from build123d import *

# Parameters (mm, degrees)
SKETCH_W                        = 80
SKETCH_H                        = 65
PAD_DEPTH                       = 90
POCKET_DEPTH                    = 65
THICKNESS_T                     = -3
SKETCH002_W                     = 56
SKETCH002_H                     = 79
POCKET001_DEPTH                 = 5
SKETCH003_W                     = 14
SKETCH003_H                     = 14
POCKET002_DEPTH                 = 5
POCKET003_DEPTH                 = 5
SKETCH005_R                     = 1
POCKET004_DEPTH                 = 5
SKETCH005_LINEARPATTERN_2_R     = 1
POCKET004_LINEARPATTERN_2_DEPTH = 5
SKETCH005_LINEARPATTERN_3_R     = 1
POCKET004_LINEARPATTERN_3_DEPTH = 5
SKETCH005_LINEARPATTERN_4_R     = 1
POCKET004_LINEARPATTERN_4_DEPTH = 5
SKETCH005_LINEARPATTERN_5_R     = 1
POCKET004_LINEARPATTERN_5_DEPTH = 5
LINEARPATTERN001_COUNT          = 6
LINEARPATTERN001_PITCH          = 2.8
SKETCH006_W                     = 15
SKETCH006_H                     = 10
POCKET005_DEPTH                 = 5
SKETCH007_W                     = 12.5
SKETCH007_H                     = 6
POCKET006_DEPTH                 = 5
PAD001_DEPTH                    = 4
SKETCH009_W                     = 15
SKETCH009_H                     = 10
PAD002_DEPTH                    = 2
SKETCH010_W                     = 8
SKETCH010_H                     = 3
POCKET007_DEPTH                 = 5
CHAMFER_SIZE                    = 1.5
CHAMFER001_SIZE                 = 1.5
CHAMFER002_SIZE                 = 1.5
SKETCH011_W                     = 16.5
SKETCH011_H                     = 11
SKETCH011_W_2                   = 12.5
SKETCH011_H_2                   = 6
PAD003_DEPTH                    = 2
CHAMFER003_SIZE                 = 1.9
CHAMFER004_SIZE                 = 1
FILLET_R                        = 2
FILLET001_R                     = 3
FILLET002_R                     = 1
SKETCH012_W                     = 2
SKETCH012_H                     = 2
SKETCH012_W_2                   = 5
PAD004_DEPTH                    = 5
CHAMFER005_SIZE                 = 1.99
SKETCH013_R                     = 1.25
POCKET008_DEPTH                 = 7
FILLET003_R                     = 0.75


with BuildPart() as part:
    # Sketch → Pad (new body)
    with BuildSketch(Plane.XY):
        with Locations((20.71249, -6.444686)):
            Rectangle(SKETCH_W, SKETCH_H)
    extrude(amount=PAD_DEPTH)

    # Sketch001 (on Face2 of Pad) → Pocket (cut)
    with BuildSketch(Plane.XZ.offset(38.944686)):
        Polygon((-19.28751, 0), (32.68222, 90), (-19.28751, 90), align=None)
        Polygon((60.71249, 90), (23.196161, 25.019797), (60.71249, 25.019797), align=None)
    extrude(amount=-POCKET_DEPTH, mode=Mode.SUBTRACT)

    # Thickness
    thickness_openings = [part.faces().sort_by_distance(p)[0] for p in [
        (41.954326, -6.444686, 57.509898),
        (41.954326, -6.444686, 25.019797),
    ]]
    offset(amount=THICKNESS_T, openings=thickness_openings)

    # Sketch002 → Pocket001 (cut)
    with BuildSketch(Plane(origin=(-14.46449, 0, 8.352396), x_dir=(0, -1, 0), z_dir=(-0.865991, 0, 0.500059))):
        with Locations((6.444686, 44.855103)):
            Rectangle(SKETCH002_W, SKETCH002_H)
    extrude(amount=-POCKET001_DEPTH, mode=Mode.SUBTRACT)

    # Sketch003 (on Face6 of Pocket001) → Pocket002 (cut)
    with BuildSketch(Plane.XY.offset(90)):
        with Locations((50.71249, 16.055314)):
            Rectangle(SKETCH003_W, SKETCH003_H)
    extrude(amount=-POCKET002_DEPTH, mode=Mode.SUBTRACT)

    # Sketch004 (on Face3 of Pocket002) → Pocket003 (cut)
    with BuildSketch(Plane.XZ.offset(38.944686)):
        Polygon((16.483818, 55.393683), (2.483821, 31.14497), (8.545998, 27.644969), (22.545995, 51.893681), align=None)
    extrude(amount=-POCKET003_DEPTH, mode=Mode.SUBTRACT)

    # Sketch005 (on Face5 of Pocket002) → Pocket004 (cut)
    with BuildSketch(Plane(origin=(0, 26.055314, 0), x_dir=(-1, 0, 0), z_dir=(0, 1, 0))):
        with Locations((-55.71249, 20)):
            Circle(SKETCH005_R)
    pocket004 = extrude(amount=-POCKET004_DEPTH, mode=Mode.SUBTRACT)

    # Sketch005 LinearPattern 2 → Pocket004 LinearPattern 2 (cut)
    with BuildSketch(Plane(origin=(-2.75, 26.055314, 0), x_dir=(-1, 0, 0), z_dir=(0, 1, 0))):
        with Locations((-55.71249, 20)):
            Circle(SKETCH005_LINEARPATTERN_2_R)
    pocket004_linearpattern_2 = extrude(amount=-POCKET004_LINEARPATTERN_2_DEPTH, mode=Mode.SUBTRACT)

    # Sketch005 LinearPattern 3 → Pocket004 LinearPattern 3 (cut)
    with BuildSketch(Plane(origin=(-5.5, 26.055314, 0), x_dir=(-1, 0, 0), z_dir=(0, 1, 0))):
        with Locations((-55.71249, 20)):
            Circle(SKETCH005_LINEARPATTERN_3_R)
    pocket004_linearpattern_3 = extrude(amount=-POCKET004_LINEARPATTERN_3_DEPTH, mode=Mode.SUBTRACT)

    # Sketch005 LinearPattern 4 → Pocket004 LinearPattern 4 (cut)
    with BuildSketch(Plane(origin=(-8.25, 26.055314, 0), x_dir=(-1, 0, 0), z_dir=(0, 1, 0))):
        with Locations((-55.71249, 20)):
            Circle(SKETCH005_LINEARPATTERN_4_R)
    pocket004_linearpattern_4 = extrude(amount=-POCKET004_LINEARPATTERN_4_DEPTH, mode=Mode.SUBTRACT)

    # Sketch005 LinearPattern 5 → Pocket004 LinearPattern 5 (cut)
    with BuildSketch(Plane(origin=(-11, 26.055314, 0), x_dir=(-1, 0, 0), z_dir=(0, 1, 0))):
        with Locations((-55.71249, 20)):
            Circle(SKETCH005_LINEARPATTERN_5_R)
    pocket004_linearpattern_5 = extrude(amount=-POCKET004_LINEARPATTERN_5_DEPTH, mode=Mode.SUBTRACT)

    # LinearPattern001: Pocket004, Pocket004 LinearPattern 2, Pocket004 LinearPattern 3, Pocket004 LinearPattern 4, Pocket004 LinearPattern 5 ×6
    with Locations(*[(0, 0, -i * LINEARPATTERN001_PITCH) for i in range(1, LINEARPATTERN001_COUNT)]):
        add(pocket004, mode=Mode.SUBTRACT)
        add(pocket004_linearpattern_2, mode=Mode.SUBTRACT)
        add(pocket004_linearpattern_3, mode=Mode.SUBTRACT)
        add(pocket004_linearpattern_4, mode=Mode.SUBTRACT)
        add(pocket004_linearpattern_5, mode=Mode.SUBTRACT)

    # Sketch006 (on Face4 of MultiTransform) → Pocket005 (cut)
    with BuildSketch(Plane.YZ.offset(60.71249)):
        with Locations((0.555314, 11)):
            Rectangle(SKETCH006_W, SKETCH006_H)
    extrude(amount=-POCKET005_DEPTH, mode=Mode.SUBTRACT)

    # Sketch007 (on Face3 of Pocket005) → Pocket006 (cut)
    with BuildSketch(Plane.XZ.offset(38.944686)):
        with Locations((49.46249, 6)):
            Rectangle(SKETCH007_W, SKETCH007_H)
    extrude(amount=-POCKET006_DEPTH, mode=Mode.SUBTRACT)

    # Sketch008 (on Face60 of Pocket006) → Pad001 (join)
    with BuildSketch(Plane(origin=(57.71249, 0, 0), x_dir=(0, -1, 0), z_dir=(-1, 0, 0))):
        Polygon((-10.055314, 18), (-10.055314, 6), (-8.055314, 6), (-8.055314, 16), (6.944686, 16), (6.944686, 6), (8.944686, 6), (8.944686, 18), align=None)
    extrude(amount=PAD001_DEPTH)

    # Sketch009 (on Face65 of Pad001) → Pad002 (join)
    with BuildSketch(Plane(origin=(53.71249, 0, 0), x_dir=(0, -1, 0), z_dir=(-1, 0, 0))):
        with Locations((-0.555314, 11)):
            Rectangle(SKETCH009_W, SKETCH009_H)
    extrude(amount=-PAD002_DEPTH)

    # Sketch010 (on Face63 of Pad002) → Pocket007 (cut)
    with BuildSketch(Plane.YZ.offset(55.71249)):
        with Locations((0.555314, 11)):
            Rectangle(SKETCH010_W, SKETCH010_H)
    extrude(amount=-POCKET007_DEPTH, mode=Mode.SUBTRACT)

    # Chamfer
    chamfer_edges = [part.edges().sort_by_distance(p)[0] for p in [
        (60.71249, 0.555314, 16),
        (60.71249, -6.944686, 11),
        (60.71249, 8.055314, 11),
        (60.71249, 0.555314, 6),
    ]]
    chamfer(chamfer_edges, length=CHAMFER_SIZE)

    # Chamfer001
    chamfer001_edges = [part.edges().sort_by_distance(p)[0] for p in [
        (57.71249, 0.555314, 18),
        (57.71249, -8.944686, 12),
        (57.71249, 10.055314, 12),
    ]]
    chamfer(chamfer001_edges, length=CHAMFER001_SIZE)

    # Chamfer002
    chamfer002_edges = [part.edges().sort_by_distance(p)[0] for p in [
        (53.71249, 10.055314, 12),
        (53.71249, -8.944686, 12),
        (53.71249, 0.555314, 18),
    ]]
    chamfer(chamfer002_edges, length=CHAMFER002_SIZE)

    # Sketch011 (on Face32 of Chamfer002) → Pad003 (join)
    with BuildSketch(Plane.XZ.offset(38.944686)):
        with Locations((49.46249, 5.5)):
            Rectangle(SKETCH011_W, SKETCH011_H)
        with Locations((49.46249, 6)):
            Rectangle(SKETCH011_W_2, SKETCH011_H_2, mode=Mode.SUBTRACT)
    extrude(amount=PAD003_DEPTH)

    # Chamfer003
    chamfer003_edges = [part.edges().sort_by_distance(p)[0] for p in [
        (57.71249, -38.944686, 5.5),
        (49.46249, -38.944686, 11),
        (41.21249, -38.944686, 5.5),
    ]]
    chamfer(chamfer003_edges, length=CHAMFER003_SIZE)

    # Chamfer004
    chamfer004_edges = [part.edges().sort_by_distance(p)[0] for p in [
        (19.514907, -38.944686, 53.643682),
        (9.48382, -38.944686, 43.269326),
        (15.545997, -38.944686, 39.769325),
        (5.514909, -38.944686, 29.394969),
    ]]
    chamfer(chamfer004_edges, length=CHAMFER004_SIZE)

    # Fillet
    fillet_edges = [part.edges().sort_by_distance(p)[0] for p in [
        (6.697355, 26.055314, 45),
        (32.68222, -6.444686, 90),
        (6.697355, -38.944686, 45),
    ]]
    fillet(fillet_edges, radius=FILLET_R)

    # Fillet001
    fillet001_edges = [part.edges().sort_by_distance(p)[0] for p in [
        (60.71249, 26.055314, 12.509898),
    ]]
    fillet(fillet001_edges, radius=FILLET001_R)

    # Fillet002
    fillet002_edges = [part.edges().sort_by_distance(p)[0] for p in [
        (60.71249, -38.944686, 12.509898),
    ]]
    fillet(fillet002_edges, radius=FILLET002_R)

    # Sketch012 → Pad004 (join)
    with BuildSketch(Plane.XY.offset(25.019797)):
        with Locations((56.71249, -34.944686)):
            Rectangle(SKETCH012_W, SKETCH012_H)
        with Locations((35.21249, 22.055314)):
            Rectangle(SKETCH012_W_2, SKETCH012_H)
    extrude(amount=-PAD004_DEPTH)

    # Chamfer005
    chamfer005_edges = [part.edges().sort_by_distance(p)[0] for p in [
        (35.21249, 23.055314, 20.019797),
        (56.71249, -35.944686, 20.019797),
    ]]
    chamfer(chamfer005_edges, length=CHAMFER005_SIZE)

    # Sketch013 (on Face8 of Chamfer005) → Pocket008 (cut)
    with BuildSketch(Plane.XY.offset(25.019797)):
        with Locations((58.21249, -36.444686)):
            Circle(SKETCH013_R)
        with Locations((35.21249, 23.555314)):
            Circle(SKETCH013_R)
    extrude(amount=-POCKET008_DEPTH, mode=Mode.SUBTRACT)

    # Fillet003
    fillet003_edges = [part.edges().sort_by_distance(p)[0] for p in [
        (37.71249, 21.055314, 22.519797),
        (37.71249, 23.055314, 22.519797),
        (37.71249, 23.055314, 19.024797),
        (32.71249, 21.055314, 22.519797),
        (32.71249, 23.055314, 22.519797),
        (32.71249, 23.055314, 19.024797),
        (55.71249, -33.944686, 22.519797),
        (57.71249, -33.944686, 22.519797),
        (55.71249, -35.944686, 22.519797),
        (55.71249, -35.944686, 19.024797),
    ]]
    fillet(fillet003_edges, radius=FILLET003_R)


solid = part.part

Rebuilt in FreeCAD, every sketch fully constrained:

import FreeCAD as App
import Part
import Sketcher
from FreeCAD import Vector
Q = App.Units.Quantity


def edges_at(feature, points):
    """Names of the edges that pass closest to the given points."""
    edges = feature.Shape.Edges
    near = lambda p: min(range(len(edges)), key=lambda i: edges[i].distToShape(Part.Vertex(*p))[0])
    return sorted({f"Edge{near(p) + 1}" for p in points})


def faces_at(feature, points):
    """Names of the faces that lie closest to the given points."""
    faces = feature.Shape.Faces
    near = lambda p: min(range(len(faces)), key=lambda i: faces[i].distToShape(Part.Vertex(*p))[0])
    return sorted({f"Face{near(p) + 1}" for p in points})


def add_polygon(sketch, points):
    """Adds a closed chain of lines whose ends are joined by coincident constraints."""
    first, n = sketch.GeometryCount, len(points)
    for a, b in zip(points, points[1:] + points[:1]):
        sketch.addGeometry(Part.LineSegment(App.Vector(*a, 0), App.Vector(*b, 0)), False)
    for i in range(n):
        sketch.addConstraint(Sketcher.Constraint("Coincident", first + i, 2, first + (i + 1) % n, 1))

doc = App.newDocument("Part")
body = doc.addObject("PartDesign::Body", "Body")

# Sketch on XY plane
sketch1 = doc.addObject("Sketcher::SketchObject", "Sketch")
body.addObject(sketch1)
sketch1.AttachmentSupport = (doc.XY_Plane, [""])
sketch1.MapMode = "FlatFace"
add_polygon(sketch1, [(-19, 26), (-19, -39), (61, -39), (61, 26)])  # lines 0-3
sketch1.addConstraint([
    Sketcher.Constraint("Vertical", 0),
    Sketcher.Constraint("Horizontal", 1),
    Sketcher.Constraint("Vertical", 2),
    Sketcher.Constraint("Horizontal", 3),
    Sketcher.Constraint("DistanceX", 1, 1, 1, 2, Q("80 mm")),
    Sketcher.Constraint("DistanceY", 0, 2, 0, 1, Q("65 mm")),
    Sketcher.Constraint("DistanceX", 0, 2, -1, 1, Q("19.28751 mm")),
    Sketcher.Constraint("DistanceY", 0, 2, -1, 1, Q("38.944686 mm")),
])
pad1 = doc.addObject("PartDesign::Pad", "Pad")
body.addObject(pad1)
pad1.Profile = sketch1
pad1.Length = 90

# Sketch on XZ plane
sketch2 = doc.addObject("Sketcher::SketchObject", "Sketch001")
body.addObject(sketch2)
sketch2.AttachmentSupport = (doc.XZ_Plane, [""])
sketch2.MapMode = "FlatFace"
sketch2.AttachmentOffset = App.Placement(Vector(0, 0, 38.944686), App.Rotation())
add_polygon(sketch2, [(-19, 0), (33, 90), (-19, 90)])  # lines 0-2
add_polygon(sketch2, [(61, 90), (23, 25), (61, 25)])  # lines 3-5
sketch2.addConstraint([
    Sketcher.Constraint("Horizontal", 1),
    Sketcher.Constraint("Vertical", 2),
    Sketcher.Constraint("Horizontal", 4),
    Sketcher.Constraint("Vertical", 5),
    Sketcher.Constraint("PointOnObject", 2, 2, -1),
    Sketcher.Constraint("Horizontal", 1, 2, 5, 2),
    Sketcher.Constraint("DistanceY", 2, 2, 2, 1, Q("90 mm")),
    Sketcher.Constraint("Angle", 3, Q("-119.999994 deg")),
    Sketcher.Constraint("DistanceX", 2, 2, 4, 2, Q("80 mm")),
    Sketcher.Constraint("DistanceX", 1, 2, 1, 1, Q("51.96973 mm")),
    Sketcher.Constraint("DistanceX", 4, 1, 4, 2, Q("37.516329 mm")),
    Sketcher.Constraint("DistanceX", -1, 1, 0, 2, Q("32.68222 mm")),
])
pocket1 = doc.addObject("PartDesign::Pocket", "Pocket")
body.addObject(pocket1)
pocket1.Profile = sketch2
pocket1.Length = 65
doc.recompute()

thickness = doc.addObject("PartDesign::Thickness", "Thickness")
body.addObject(thickness)
thickness.Base = (pocket1, faces_at(pocket1, [(41.954, -6.445, 57.51), (41.954, -6.445, 25.02)]))
thickness.Value = 3
thickness.Reversed = True
thickness.Join = "Arc"

# Sketch on an angled plane
sketch3 = doc.addObject("Sketcher::SketchObject", "Sketch002")
body.addObject(sketch3)
sketch3.Placement = App.Placement(Vector(-14.46449, 0, 8.352396), App.Rotation(Vector(0, -1, 0), Vector(0.500059146, 0, 0.865991253), Vector(-0.865991253, 0, 0.500059146), "ZXY"))
add_polygon(sketch3, [(-22, 84), (-22, 5), (34, 5), (34, 84)])  # lines 0-3
sketch3.addConstraint([
    Sketcher.Constraint("Vertical", 0),
    Sketcher.Constraint("Horizontal", 1),
    Sketcher.Constraint("Vertical", 2),
    Sketcher.Constraint("Horizontal", 3),
    Sketcher.Constraint("DistanceX", 1, 1, 1, 2, Q("56 mm")),
    Sketcher.Constraint("DistanceY", 0, 2, 0, 1, Q("79 mm")),
    Sketcher.Constraint("DistanceX", 0, 2, -1, 1, Q("21.555314 mm")),
    Sketcher.Constraint("DistanceY", -1, 1, 0, 2, Q("5.355103 mm")),
])
pocket2 = doc.addObject("PartDesign::Pocket", "Pocket001")
body.addObject(pocket2)
pocket2.Profile = sketch3
pocket2.Length = 5

# Sketch on XY plane
sketch4 = doc.addObject("Sketcher::SketchObject", "Sketch003")
body.addObject(sketch4)
sketch4.AttachmentSupport = (doc.XY_Plane, [""])
sketch4.MapMode = "FlatFace"
sketch4.AttachmentOffset = App.Placement(Vector(0, 0, 90), App.Rotation())
add_polygon(sketch4, [(44, 23), (44, 9), (58, 9), (58, 23)])  # lines 0-3
sketch4.addConstraint([
    Sketcher.Constraint("Vertical", 0),
    Sketcher.Constraint("Horizontal", 1),
    Sketcher.Constraint("Vertical", 2),
    Sketcher.Constraint("Horizontal", 3),
    Sketcher.Constraint("Equal", 3, 0),
    Sketcher.Constraint("DistanceX", 1, 1, 1, 2, Q("14 mm")),
    Sketcher.Constraint("DistanceX", -1, 1, 0, 2, Q("43.71249 mm")),
    Sketcher.Constraint("DistanceY", -1, 1, 0, 2, Q("9.055314 mm")),
])
pocket3 = doc.addObject("PartDesign::Pocket", "Pocket002")
body.addObject(pocket3)
pocket3.Profile = sketch4
pocket3.Length = 5

# Sketch on XZ plane
sketch5 = doc.addObject("Sketcher::SketchObject", "Sketch004")
body.addObject(sketch5)
sketch5.AttachmentSupport = (doc.XZ_Plane, [""])
sketch5.MapMode = "FlatFace"
sketch5.AttachmentOffset = App.Placement(Vector(0, 0, 38.944686), App.Rotation())
add_polygon(sketch5, [(16, 55), (2, 31), (9, 28), (23, 52)])  # lines 0-3
sketch5.addConstraint([
    Sketcher.Constraint("Perpendicular", 0, 1),
    Sketcher.Constraint("Perpendicular", 1, 2),
    Sketcher.Constraint("Perpendicular", 2, 3),
    Sketcher.Constraint("Angle", 0, Q("-119.999993 deg")),
    Sketcher.Constraint("Distance", 0, Q("28 mm")),
    Sketcher.Constraint("Distance", 1, Q("7 mm")),
    Sketcher.Constraint("DistanceX", -1, 1, 1, 2, Q("8.545998 mm")),
    Sketcher.Constraint("DistanceY", -1, 1, 0, 2, Q("31.14497 mm")),
])
pocket4 = doc.addObject("PartDesign::Pocket", "Pocket003")
body.addObject(pocket4)
pocket4.Profile = sketch5
pocket4.Length = 5

# Sketch on XZ plane
sketch6 = doc.addObject("Sketcher::SketchObject", "Sketch005")
body.addObject(sketch6)
sketch6.AttachmentSupport = (doc.XZ_Plane, [""])
sketch6.MapMode = "FlatFace"
sketch6.AttachmentOffset = App.Placement(Vector(0, 0, -26.055314), App.Rotation())
sketch6.addGeometry(Part.Circle(Vector(55.7, 20, 0), Vector(0, 0, 1), 1), False)
sketch6.addConstraint([
    Sketcher.Constraint("Diameter", 0, Q("2 mm")),
    Sketcher.Constraint("DistanceY", -1, 1, 0, 3, Q("20 mm")),
    Sketcher.Constraint("DistanceX", -1, 1, 0, 3, Q("55.71249 mm")),
])
pocket5 = doc.addObject("PartDesign::Pocket", "Pocket004")
body.addObject(pocket5)
pocket5.Profile = sketch6
pocket5.Length = 5
pocket5.Reversed = True

# Sketch on XZ plane
sketch7 = doc.addObject("Sketcher::SketchObject", "Sketch006")
body.addObject(sketch7)
sketch7.AttachmentSupport = (doc.XZ_Plane, [""])
sketch7.MapMode = "FlatFace"
sketch7.AttachmentOffset = App.Placement(Vector(0, 0, -26.055314), App.Rotation())
sketch7.addGeometry(Part.Circle(Vector(53, 20, 0), Vector(0, 0, 1), 1), False)
sketch7.addConstraint([
    Sketcher.Constraint("Diameter", 0, Q("2 mm")),
    Sketcher.Constraint("DistanceY", -1, 1, 0, 3, Q("20 mm")),
    Sketcher.Constraint("DistanceX", -1, 1, 0, 3, Q("52.96249 mm")),
])
pocket6 = doc.addObject("PartDesign::Pocket", "Pocket005")
body.addObject(pocket6)
pocket6.Profile = sketch7
pocket6.Length = 5
pocket6.Reversed = True

# Sketch on XZ plane
sketch8 = doc.addObject("Sketcher::SketchObject", "Sketch007")
body.addObject(sketch8)
sketch8.AttachmentSupport = (doc.XZ_Plane, [""])
sketch8.MapMode = "FlatFace"
sketch8.AttachmentOffset = App.Placement(Vector(0, 0, -26.055314), App.Rotation())
sketch8.addGeometry(Part.Circle(Vector(50.2, 20, 0), Vector(0, 0, 1), 1), False)
sketch8.addConstraint([
    Sketcher.Constraint("Diameter", 0, Q("2 mm")),
    Sketcher.Constraint("DistanceY", -1, 1, 0, 3, Q("20 mm")),
    Sketcher.Constraint("DistanceX", -1, 1, 0, 3, Q("50.21249 mm")),
])
pocket7 = doc.addObject("PartDesign::Pocket", "Pocket006")
body.addObject(pocket7)
pocket7.Profile = sketch8
pocket7.Length = 5
pocket7.Reversed = True

# Sketch on XZ plane
sketch9 = doc.addObject("Sketcher::SketchObject", "Sketch008")
body.addObject(sketch9)
sketch9.AttachmentSupport = (doc.XZ_Plane, [""])
sketch9.MapMode = "FlatFace"
sketch9.AttachmentOffset = App.Placement(Vector(0, 0, -26.055314), App.Rotation())
sketch9.addGeometry(Part.Circle(Vector(47.5, 20, 0), Vector(0, 0, 1), 1), False)
sketch9.addConstraint([
    Sketcher.Constraint("Diameter", 0, Q("2 mm")),
    Sketcher.Constraint("DistanceY", -1, 1, 0, 3, Q("20 mm")),
    Sketcher.Constraint("DistanceX", -1, 1, 0, 3, Q("47.46249 mm")),
])
pocket8 = doc.addObject("PartDesign::Pocket", "Pocket007")
body.addObject(pocket8)
pocket8.Profile = sketch9
pocket8.Length = 5
pocket8.Reversed = True

# Sketch on XZ plane
sketch10 = doc.addObject("Sketcher::SketchObject", "Sketch009")
body.addObject(sketch10)
sketch10.AttachmentSupport = (doc.XZ_Plane, [""])
sketch10.MapMode = "FlatFace"
sketch10.AttachmentOffset = App.Placement(Vector(0, 0, -26.055314), App.Rotation())
sketch10.addGeometry(Part.Circle(Vector(44.7, 20, 0), Vector(0, 0, 1), 1), False)
sketch10.addConstraint([
    Sketcher.Constraint("Diameter", 0, Q("2 mm")),
    Sketcher.Constraint("DistanceY", -1, 1, 0, 3, Q("20 mm")),
    Sketcher.Constraint("DistanceX", -1, 1, 0, 3, Q("44.71249 mm")),
])
pocket9 = doc.addObject("PartDesign::Pocket", "Pocket008")
body.addObject(pocket9)
pocket9.Profile = sketch10
pocket9.Length = 5
pocket9.Reversed = True
doc.recompute()

linearpattern = doc.addObject("PartDesign::LinearPattern", "LinearPattern")
body.addObject(linearpattern)
linearpattern.Originals = [pocket5, pocket6, pocket7, pocket8, pocket9]
linearpattern.Direction = (doc.Z_Axis, [""])
linearpattern.Mode = "offset"
linearpattern.Offset = 2.8
linearpattern.Occurrences = 6
linearpattern.Reversed = True
body.Tip = linearpattern

# Sketch on YZ plane
sketch11 = doc.addObject("Sketcher::SketchObject", "Sketch010")
body.addObject(sketch11)
sketch11.AttachmentSupport = (doc.YZ_Plane, [""])
sketch11.MapMode = "FlatFace"
sketch11.AttachmentOffset = App.Placement(Vector(0, 0, 60.71249), App.Rotation())
add_polygon(sketch11, [(-7, 16), (-7, 6), (8, 6), (8, 16)])  # lines 0-3
sketch11.addConstraint([
    Sketcher.Constraint("Vertical", 0),
    Sketcher.Constraint("Horizontal", 1),
    Sketcher.Constraint("Vertical", 2),
    Sketcher.Constraint("Horizontal", 3),
    Sketcher.Constraint("DistanceX", 1, 1, 1, 2, Q("15 mm")),
    Sketcher.Constraint("DistanceY", 0, 2, 0, 1, Q("10 mm")),
    Sketcher.Constraint("DistanceY", -1, 1, 0, 2, Q("6 mm")),
    Sketcher.Constraint("DistanceX", 0, 2, -1, 1, Q("6.944686 mm")),
])
pocket10 = doc.addObject("PartDesign::Pocket", "Pocket009")
body.addObject(pocket10)
pocket10.Profile = sketch11
pocket10.Length = 5

# Sketch on XZ plane
sketch12 = doc.addObject("Sketcher::SketchObject", "Sketch011")
body.addObject(sketch12)
sketch12.AttachmentSupport = (doc.XZ_Plane, [""])
sketch12.MapMode = "FlatFace"
sketch12.AttachmentOffset = App.Placement(Vector(0, 0, 38.944686), App.Rotation())
add_polygon(sketch12, [(43, 9), (43, 3), (56, 3), (56, 9)])  # lines 0-3
sketch12.addConstraint([
    Sketcher.Constraint("Vertical", 0),
    Sketcher.Constraint("Horizontal", 1),
    Sketcher.Constraint("Vertical", 2),
    Sketcher.Constraint("Horizontal", 3),
    Sketcher.Constraint("DistanceY", 0, 2, 0, 1, Q("6 mm")),
    Sketcher.Constraint("DistanceX", 1, 1, 1, 2, Q("12.5 mm")),
    Sketcher.Constraint("DistanceY", -1, 1, 0, 2, Q("3 mm")),
    Sketcher.Constraint("DistanceX", -1, 1, 0, 2, Q("43.21249 mm")),
])
pocket11 = doc.addObject("PartDesign::Pocket", "Pocket010")
body.addObject(pocket11)
pocket11.Profile = sketch12
pocket11.Length = 5

# Sketch on YZ plane
sketch13 = doc.addObject("Sketcher::SketchObject", "Sketch012")
body.addObject(sketch13)
sketch13.AttachmentSupport = (doc.YZ_Plane, [""])
sketch13.MapMode = "FlatFace"
sketch13.AttachmentOffset = App.Placement(Vector(0, 0, 57.71249), App.Rotation())
add_polygon(sketch13, [(10.1, 18), (10.1, 6), (8.1, 6), (8.1, 16), (-6.9, 16), (-6.9, 6), (-8.9, 6), (-8.9, 18)])  # lines 0-7
sketch13.addConstraint([
    Sketcher.Constraint("Vertical", 0),
    Sketcher.Constraint("Horizontal", 1),
    Sketcher.Constraint("Vertical", 2),
    Sketcher.Constraint("Horizontal", 3),
    Sketcher.Constraint("Vertical", 4),
    Sketcher.Constraint("Horizontal", 5),
    Sketcher.Constraint("Vertical", 6),
    Sketcher.Constraint("Horizontal", 7),
    Sketcher.Constraint("Horizontal", 1, 2, 4, 2),
    Sketcher.Constraint("Equal", 1, 5),
    Sketcher.Constraint("DistanceX", 1, 2, 1, 1, Q("2 mm")),
    Sketcher.Constraint("DistanceX", 3, 2, 3, 1, Q("15 mm")),
    Sketcher.Constraint("DistanceY", 0, 2, 0, 1, Q("12 mm")),
    Sketcher.Constraint("DistanceY", 2, 1, 2, 2, Q("10 mm")),
    Sketcher.Constraint("DistanceY", -1, 1, 0, 2, Q("6 mm")),
    Sketcher.Constraint("DistanceX", -1, 1, 0, 2, Q("10.055314 mm")),
])
pad2 = doc.addObject("PartDesign::Pad", "Pad001")
body.addObject(pad2)
pad2.Profile = sketch13
pad2.Length = 4
pad2.Reversed = True

# Sketch on YZ plane
sketch14 = doc.addObject("Sketcher::SketchObject", "Sketch013")
body.addObject(sketch14)
sketch14.AttachmentSupport = (doc.YZ_Plane, [""])
sketch14.MapMode = "FlatFace"
sketch14.AttachmentOffset = App.Placement(Vector(0, 0, 53.71249), App.Rotation())
add_polygon(sketch14, [(8, 16), (8, 6), (-7, 6), (-7, 16)])  # lines 0-3
sketch14.addConstraint([
    Sketcher.Constraint("Vertical", 0),
    Sketcher.Constraint("Horizontal", 1),
    Sketcher.Constraint("Vertical", 2),
    Sketcher.Constraint("Horizontal", 3),
    Sketcher.Constraint("DistanceX", 1, 2, 1, 1, Q("15 mm")),
    Sketcher.Constraint("DistanceY", 0, 2, 0, 1, Q("10 mm")),
    Sketcher.Constraint("DistanceY", -1, 1, 0, 2, Q("6 mm")),
    Sketcher.Constraint("DistanceX", -1, 1, 0, 2, Q("8.055314 mm")),
])
pad3 = doc.addObject("PartDesign::Pad", "Pad002")
body.addObject(pad3)
pad3.Profile = sketch14
pad3.Length = 2

# Sketch on YZ plane
sketch15 = doc.addObject("Sketcher::SketchObject", "Sketch014")
body.addObject(sketch15)
sketch15.AttachmentSupport = (doc.YZ_Plane, [""])
sketch15.MapMode = "FlatFace"
sketch15.AttachmentOffset = App.Placement(Vector(0, 0, 55.71249), App.Rotation())
add_polygon(sketch15, [(-3.4, 12.5), (-3.4, 9.5), (4.6, 9.5), (4.6, 12.5)])  # lines 0-3
sketch15.addConstraint([
    Sketcher.Constraint("Vertical", 0),
    Sketcher.Constraint("Horizontal", 1),
    Sketcher.Constraint("Vertical", 2),
    Sketcher.Constraint("Horizontal", 3),
    Sketcher.Constraint("DistanceX", 1, 1, 1, 2, Q("8 mm")),
    Sketcher.Constraint("DistanceY", 0, 2, 0, 1, Q("3 mm")),
    Sketcher.Constraint("DistanceY", -1, 1, 0, 2, Q("9.5 mm")),
    Sketcher.Constraint("DistanceX", 0, 2, -1, 1, Q("3.444686 mm")),
])
pocket12 = doc.addObject("PartDesign::Pocket", "Pocket011")
body.addObject(pocket12)
pocket12.Profile = sketch15
pocket12.Length = 5
doc.recompute()

chamfer = doc.addObject("PartDesign::Chamfer", "Chamfer")
body.addObject(chamfer)
chamfer.Base = (pocket12, edges_at(pocket12, [
    (60.712, 0.555, 16),
    (60.712, -6.945, 11),
    (60.712, 8.055, 11),
    (60.712, 0.555, 6),
]))
chamfer.Size = 1.5
doc.recompute()

chamfer2 = doc.addObject("PartDesign::Chamfer", "Chamfer001")
body.addObject(chamfer2)
chamfer2.Base = (chamfer, edges_at(chamfer, [(57.712, 0.555, 18), (57.712, -8.945, 12), (57.712, 10.055, 12)]))
chamfer2.Size = 1.5
doc.recompute()

chamfer3 = doc.addObject("PartDesign::Chamfer", "Chamfer002")
body.addObject(chamfer3)
chamfer3.Base = (chamfer2, edges_at(chamfer2, [(53.712, 10.055, 12), (53.712, -8.945, 12), (53.712, 0.555, 18)]))
chamfer3.Size = 1.5

# Sketch on XZ plane
sketch16 = doc.addObject("Sketcher::SketchObject", "Sketch015")
body.addObject(sketch16)
sketch16.AttachmentSupport = (doc.XZ_Plane, [""])
sketch16.MapMode = "FlatFace"
sketch16.AttachmentOffset = App.Placement(Vector(0, 0, 38.944686), App.Rotation())
add_polygon(sketch16, [(41, 11), (41, 0), (58, 0), (58, 11)])  # lines 0-3
add_polygon(sketch16, [(56, 3), (43, 3), (43, 9), (56, 9)])  # lines 4-7
sketch16.addConstraint([
    Sketcher.Constraint("Vertical", 0),
    Sketcher.Constraint("Horizontal", 1),
    Sketcher.Constraint("Vertical", 2),
    Sketcher.Constraint("Horizontal", 3),
    Sketcher.Constraint("Horizontal", 4),
    Sketcher.Constraint("Vertical", 5),
    Sketcher.Constraint("Horizontal", 6),
    Sketcher.Constraint("Vertical", 7),
    Sketcher.Constraint("PointOnObject", 0, 2, -1),
    Sketcher.Constraint("DistanceY", 0, 2, 0, 1, Q("11 mm")),
    Sketcher.Constraint("DistanceY", 5, 1, 5, 2, Q("6 mm")),
    Sketcher.Constraint("DistanceX", 1, 1, 1, 2, Q("16.5 mm")),
    Sketcher.Constraint("DistanceX", 4, 2, 4, 1, Q("12.5 mm")),
    Sketcher.Constraint("DistanceY", -1, 1, 4, 2, Q("3 mm")),
    Sketcher.Constraint("DistanceX", 0, 2, 4, 2, Q("2 mm")),
    Sketcher.Constraint("DistanceX", -1, 1, 0, 2, Q("41.21249 mm")),
])
pad4 = doc.addObject("PartDesign::Pad", "Pad003")
body.addObject(pad4)
pad4.Profile = sketch16
pad4.Length = 2
doc.recompute()

chamfer4 = doc.addObject("PartDesign::Chamfer", "Chamfer003")
body.addObject(chamfer4)
chamfer4.Base = (pad4, edges_at(pad4, [(57.712, -38.945, 5.5), (49.462, -38.945, 11), (41.212, -38.945, 5.5)]))
chamfer4.Size = 1.9
doc.recompute()

chamfer5 = doc.addObject("PartDesign::Chamfer", "Chamfer004")
body.addObject(chamfer5)
chamfer5.Base = (chamfer4, edges_at(chamfer4, [
    (19.515, -38.945, 53.644),
    (9.484, -38.945, 43.269),
    (15.546, -38.945, 39.769),
    (5.515, -38.945, 29.395),
]))
chamfer5.Size = 1
doc.recompute()

fillet = doc.addObject("PartDesign::Fillet", "Fillet")
body.addObject(fillet)
fillet.Base = (chamfer5, edges_at(chamfer5, [(6.697, 26.055, 45), (32.682, -6.445, 90), (6.697, -38.945, 45)]))
fillet.Radius = 2
doc.recompute()

fillet2 = doc.addObject("PartDesign::Fillet", "Fillet001")
body.addObject(fillet2)
fillet2.Base = (fillet, edges_at(fillet, [(60.712, 26.055, 12.51)]))
fillet2.Radius = 3
doc.recompute()

fillet3 = doc.addObject("PartDesign::Fillet", "Fillet002")
body.addObject(fillet3)
fillet3.Base = (fillet2, edges_at(fillet2, [(60.712, -38.945, 12.51)]))
fillet3.Radius = 1

# Sketch on XY plane
sketch17 = doc.addObject("Sketcher::SketchObject", "Sketch016")
body.addObject(sketch17)
sketch17.AttachmentSupport = (doc.XY_Plane, [""])
sketch17.MapMode = "FlatFace"
sketch17.AttachmentOffset = App.Placement(Vector(0, 0, 25.019797), App.Rotation())
add_polygon(sketch17, [(55.7, -33.9), (55.7, -35.9), (57.7, -35.9), (57.7, -33.9)])  # lines 0-3
add_polygon(sketch17, [(32.7, 23.1), (32.7, 21.1), (37.7, 21.1), (37.7, 23.1)])  # lines 4-7
sketch17.addConstraint([
    Sketcher.Constraint("Vertical", 0),
    Sketcher.Constraint("Horizontal", 1),
    Sketcher.Constraint("Vertical", 2),
    Sketcher.Constraint("Horizontal", 3),
    Sketcher.Constraint("Vertical", 4),
    Sketcher.Constraint("Horizontal", 5),
    Sketcher.Constraint("Vertical", 6),
    Sketcher.Constraint("Horizontal", 7),
    Sketcher.Constraint("Equal", 3, 0),
    Sketcher.Constraint("Equal", 2, 4),
    Sketcher.Constraint("DistanceX", 1, 1, 1, 2, Q("2 mm")),
    Sketcher.Constraint("DistanceX", 5, 1, 5, 2, Q("5 mm")),
    Sketcher.Constraint("DistanceX", 4, 2, 3, 2, Q("23 mm")),
    Sketcher.Constraint("DistanceY", 3, 2, 4, 2, Q("55 mm")),
    Sketcher.Constraint("DistanceX", -1, 1, 0, 2, Q("55.71249 mm")),
    Sketcher.Constraint("DistanceY", 0, 2, -1, 1, Q("35.944686 mm")),
])
pad5 = doc.addObject("PartDesign::Pad", "Pad004")
body.addObject(pad5)
pad5.Profile = sketch17
pad5.Length = 5
pad5.Reversed = True
doc.recompute()

chamfer6 = doc.addObject("PartDesign::Chamfer", "Chamfer005")
body.addObject(chamfer6)
chamfer6.Base = (pad5, edges_at(pad5, [(35.212, 23.055, 20.02), (56.712, -35.945, 20.02)]))
chamfer6.Size = 1.99

# Sketch on XY plane
sketch18 = doc.addObject("Sketcher::SketchObject", "Sketch017")
body.addObject(sketch18)
sketch18.AttachmentSupport = (doc.XY_Plane, [""])
sketch18.MapMode = "FlatFace"
sketch18.AttachmentOffset = App.Placement(Vector(0, 0, 25.019797), App.Rotation())
sketch18.addGeometry([
    Part.Circle(Vector(58.2, -36.4, 0), Vector(0, 0, 1), 1.2),
    Part.Circle(Vector(35.2, 23.6, 0), Vector(0, 0, 1), 1.2),
], False)
sketch18.addConstraint([
    Sketcher.Constraint("Equal", 0, 1),
    Sketcher.Constraint("Diameter", 0, Q("2.5 mm")),
    Sketcher.Constraint("DistanceX", 1, 3, 0, 3, Q("23 mm")),
    Sketcher.Constraint("DistanceY", 0, 3, 1, 3, Q("60 mm")),
    Sketcher.Constraint("DistanceX", -1, 1, 0, 3, Q("58.21249 mm")),
    Sketcher.Constraint("DistanceY", 0, 3, -1, 1, Q("36.444686 mm")),
])
pocket13 = doc.addObject("PartDesign::Pocket", "Pocket012")
body.addObject(pocket13)
pocket13.Profile = sketch18
pocket13.Length = 7
doc.recompute()

fillet4 = doc.addObject("PartDesign::Fillet", "Fillet003")
body.addObject(fillet4)
fillet4.Base = (pocket13, edges_at(pocket13, [
    (37.712, 21.055, 22.52),
    (37.712, 23.055, 21.525),
    (37.712, 23.055, 21.525),
    (32.712, 21.055, 22.52),
    (32.712, 23.055, 21.525),
    (32.712, 23.055, 21.525),
    (55.712, -33.945, 22.52),
    (57.712, -33.945, 22.52),
    (55.712, -35.945, 21.525),
    (55.712, -35.945, 21.525),
]))
fillet4.Radius = 0.75

doc.recompute()
